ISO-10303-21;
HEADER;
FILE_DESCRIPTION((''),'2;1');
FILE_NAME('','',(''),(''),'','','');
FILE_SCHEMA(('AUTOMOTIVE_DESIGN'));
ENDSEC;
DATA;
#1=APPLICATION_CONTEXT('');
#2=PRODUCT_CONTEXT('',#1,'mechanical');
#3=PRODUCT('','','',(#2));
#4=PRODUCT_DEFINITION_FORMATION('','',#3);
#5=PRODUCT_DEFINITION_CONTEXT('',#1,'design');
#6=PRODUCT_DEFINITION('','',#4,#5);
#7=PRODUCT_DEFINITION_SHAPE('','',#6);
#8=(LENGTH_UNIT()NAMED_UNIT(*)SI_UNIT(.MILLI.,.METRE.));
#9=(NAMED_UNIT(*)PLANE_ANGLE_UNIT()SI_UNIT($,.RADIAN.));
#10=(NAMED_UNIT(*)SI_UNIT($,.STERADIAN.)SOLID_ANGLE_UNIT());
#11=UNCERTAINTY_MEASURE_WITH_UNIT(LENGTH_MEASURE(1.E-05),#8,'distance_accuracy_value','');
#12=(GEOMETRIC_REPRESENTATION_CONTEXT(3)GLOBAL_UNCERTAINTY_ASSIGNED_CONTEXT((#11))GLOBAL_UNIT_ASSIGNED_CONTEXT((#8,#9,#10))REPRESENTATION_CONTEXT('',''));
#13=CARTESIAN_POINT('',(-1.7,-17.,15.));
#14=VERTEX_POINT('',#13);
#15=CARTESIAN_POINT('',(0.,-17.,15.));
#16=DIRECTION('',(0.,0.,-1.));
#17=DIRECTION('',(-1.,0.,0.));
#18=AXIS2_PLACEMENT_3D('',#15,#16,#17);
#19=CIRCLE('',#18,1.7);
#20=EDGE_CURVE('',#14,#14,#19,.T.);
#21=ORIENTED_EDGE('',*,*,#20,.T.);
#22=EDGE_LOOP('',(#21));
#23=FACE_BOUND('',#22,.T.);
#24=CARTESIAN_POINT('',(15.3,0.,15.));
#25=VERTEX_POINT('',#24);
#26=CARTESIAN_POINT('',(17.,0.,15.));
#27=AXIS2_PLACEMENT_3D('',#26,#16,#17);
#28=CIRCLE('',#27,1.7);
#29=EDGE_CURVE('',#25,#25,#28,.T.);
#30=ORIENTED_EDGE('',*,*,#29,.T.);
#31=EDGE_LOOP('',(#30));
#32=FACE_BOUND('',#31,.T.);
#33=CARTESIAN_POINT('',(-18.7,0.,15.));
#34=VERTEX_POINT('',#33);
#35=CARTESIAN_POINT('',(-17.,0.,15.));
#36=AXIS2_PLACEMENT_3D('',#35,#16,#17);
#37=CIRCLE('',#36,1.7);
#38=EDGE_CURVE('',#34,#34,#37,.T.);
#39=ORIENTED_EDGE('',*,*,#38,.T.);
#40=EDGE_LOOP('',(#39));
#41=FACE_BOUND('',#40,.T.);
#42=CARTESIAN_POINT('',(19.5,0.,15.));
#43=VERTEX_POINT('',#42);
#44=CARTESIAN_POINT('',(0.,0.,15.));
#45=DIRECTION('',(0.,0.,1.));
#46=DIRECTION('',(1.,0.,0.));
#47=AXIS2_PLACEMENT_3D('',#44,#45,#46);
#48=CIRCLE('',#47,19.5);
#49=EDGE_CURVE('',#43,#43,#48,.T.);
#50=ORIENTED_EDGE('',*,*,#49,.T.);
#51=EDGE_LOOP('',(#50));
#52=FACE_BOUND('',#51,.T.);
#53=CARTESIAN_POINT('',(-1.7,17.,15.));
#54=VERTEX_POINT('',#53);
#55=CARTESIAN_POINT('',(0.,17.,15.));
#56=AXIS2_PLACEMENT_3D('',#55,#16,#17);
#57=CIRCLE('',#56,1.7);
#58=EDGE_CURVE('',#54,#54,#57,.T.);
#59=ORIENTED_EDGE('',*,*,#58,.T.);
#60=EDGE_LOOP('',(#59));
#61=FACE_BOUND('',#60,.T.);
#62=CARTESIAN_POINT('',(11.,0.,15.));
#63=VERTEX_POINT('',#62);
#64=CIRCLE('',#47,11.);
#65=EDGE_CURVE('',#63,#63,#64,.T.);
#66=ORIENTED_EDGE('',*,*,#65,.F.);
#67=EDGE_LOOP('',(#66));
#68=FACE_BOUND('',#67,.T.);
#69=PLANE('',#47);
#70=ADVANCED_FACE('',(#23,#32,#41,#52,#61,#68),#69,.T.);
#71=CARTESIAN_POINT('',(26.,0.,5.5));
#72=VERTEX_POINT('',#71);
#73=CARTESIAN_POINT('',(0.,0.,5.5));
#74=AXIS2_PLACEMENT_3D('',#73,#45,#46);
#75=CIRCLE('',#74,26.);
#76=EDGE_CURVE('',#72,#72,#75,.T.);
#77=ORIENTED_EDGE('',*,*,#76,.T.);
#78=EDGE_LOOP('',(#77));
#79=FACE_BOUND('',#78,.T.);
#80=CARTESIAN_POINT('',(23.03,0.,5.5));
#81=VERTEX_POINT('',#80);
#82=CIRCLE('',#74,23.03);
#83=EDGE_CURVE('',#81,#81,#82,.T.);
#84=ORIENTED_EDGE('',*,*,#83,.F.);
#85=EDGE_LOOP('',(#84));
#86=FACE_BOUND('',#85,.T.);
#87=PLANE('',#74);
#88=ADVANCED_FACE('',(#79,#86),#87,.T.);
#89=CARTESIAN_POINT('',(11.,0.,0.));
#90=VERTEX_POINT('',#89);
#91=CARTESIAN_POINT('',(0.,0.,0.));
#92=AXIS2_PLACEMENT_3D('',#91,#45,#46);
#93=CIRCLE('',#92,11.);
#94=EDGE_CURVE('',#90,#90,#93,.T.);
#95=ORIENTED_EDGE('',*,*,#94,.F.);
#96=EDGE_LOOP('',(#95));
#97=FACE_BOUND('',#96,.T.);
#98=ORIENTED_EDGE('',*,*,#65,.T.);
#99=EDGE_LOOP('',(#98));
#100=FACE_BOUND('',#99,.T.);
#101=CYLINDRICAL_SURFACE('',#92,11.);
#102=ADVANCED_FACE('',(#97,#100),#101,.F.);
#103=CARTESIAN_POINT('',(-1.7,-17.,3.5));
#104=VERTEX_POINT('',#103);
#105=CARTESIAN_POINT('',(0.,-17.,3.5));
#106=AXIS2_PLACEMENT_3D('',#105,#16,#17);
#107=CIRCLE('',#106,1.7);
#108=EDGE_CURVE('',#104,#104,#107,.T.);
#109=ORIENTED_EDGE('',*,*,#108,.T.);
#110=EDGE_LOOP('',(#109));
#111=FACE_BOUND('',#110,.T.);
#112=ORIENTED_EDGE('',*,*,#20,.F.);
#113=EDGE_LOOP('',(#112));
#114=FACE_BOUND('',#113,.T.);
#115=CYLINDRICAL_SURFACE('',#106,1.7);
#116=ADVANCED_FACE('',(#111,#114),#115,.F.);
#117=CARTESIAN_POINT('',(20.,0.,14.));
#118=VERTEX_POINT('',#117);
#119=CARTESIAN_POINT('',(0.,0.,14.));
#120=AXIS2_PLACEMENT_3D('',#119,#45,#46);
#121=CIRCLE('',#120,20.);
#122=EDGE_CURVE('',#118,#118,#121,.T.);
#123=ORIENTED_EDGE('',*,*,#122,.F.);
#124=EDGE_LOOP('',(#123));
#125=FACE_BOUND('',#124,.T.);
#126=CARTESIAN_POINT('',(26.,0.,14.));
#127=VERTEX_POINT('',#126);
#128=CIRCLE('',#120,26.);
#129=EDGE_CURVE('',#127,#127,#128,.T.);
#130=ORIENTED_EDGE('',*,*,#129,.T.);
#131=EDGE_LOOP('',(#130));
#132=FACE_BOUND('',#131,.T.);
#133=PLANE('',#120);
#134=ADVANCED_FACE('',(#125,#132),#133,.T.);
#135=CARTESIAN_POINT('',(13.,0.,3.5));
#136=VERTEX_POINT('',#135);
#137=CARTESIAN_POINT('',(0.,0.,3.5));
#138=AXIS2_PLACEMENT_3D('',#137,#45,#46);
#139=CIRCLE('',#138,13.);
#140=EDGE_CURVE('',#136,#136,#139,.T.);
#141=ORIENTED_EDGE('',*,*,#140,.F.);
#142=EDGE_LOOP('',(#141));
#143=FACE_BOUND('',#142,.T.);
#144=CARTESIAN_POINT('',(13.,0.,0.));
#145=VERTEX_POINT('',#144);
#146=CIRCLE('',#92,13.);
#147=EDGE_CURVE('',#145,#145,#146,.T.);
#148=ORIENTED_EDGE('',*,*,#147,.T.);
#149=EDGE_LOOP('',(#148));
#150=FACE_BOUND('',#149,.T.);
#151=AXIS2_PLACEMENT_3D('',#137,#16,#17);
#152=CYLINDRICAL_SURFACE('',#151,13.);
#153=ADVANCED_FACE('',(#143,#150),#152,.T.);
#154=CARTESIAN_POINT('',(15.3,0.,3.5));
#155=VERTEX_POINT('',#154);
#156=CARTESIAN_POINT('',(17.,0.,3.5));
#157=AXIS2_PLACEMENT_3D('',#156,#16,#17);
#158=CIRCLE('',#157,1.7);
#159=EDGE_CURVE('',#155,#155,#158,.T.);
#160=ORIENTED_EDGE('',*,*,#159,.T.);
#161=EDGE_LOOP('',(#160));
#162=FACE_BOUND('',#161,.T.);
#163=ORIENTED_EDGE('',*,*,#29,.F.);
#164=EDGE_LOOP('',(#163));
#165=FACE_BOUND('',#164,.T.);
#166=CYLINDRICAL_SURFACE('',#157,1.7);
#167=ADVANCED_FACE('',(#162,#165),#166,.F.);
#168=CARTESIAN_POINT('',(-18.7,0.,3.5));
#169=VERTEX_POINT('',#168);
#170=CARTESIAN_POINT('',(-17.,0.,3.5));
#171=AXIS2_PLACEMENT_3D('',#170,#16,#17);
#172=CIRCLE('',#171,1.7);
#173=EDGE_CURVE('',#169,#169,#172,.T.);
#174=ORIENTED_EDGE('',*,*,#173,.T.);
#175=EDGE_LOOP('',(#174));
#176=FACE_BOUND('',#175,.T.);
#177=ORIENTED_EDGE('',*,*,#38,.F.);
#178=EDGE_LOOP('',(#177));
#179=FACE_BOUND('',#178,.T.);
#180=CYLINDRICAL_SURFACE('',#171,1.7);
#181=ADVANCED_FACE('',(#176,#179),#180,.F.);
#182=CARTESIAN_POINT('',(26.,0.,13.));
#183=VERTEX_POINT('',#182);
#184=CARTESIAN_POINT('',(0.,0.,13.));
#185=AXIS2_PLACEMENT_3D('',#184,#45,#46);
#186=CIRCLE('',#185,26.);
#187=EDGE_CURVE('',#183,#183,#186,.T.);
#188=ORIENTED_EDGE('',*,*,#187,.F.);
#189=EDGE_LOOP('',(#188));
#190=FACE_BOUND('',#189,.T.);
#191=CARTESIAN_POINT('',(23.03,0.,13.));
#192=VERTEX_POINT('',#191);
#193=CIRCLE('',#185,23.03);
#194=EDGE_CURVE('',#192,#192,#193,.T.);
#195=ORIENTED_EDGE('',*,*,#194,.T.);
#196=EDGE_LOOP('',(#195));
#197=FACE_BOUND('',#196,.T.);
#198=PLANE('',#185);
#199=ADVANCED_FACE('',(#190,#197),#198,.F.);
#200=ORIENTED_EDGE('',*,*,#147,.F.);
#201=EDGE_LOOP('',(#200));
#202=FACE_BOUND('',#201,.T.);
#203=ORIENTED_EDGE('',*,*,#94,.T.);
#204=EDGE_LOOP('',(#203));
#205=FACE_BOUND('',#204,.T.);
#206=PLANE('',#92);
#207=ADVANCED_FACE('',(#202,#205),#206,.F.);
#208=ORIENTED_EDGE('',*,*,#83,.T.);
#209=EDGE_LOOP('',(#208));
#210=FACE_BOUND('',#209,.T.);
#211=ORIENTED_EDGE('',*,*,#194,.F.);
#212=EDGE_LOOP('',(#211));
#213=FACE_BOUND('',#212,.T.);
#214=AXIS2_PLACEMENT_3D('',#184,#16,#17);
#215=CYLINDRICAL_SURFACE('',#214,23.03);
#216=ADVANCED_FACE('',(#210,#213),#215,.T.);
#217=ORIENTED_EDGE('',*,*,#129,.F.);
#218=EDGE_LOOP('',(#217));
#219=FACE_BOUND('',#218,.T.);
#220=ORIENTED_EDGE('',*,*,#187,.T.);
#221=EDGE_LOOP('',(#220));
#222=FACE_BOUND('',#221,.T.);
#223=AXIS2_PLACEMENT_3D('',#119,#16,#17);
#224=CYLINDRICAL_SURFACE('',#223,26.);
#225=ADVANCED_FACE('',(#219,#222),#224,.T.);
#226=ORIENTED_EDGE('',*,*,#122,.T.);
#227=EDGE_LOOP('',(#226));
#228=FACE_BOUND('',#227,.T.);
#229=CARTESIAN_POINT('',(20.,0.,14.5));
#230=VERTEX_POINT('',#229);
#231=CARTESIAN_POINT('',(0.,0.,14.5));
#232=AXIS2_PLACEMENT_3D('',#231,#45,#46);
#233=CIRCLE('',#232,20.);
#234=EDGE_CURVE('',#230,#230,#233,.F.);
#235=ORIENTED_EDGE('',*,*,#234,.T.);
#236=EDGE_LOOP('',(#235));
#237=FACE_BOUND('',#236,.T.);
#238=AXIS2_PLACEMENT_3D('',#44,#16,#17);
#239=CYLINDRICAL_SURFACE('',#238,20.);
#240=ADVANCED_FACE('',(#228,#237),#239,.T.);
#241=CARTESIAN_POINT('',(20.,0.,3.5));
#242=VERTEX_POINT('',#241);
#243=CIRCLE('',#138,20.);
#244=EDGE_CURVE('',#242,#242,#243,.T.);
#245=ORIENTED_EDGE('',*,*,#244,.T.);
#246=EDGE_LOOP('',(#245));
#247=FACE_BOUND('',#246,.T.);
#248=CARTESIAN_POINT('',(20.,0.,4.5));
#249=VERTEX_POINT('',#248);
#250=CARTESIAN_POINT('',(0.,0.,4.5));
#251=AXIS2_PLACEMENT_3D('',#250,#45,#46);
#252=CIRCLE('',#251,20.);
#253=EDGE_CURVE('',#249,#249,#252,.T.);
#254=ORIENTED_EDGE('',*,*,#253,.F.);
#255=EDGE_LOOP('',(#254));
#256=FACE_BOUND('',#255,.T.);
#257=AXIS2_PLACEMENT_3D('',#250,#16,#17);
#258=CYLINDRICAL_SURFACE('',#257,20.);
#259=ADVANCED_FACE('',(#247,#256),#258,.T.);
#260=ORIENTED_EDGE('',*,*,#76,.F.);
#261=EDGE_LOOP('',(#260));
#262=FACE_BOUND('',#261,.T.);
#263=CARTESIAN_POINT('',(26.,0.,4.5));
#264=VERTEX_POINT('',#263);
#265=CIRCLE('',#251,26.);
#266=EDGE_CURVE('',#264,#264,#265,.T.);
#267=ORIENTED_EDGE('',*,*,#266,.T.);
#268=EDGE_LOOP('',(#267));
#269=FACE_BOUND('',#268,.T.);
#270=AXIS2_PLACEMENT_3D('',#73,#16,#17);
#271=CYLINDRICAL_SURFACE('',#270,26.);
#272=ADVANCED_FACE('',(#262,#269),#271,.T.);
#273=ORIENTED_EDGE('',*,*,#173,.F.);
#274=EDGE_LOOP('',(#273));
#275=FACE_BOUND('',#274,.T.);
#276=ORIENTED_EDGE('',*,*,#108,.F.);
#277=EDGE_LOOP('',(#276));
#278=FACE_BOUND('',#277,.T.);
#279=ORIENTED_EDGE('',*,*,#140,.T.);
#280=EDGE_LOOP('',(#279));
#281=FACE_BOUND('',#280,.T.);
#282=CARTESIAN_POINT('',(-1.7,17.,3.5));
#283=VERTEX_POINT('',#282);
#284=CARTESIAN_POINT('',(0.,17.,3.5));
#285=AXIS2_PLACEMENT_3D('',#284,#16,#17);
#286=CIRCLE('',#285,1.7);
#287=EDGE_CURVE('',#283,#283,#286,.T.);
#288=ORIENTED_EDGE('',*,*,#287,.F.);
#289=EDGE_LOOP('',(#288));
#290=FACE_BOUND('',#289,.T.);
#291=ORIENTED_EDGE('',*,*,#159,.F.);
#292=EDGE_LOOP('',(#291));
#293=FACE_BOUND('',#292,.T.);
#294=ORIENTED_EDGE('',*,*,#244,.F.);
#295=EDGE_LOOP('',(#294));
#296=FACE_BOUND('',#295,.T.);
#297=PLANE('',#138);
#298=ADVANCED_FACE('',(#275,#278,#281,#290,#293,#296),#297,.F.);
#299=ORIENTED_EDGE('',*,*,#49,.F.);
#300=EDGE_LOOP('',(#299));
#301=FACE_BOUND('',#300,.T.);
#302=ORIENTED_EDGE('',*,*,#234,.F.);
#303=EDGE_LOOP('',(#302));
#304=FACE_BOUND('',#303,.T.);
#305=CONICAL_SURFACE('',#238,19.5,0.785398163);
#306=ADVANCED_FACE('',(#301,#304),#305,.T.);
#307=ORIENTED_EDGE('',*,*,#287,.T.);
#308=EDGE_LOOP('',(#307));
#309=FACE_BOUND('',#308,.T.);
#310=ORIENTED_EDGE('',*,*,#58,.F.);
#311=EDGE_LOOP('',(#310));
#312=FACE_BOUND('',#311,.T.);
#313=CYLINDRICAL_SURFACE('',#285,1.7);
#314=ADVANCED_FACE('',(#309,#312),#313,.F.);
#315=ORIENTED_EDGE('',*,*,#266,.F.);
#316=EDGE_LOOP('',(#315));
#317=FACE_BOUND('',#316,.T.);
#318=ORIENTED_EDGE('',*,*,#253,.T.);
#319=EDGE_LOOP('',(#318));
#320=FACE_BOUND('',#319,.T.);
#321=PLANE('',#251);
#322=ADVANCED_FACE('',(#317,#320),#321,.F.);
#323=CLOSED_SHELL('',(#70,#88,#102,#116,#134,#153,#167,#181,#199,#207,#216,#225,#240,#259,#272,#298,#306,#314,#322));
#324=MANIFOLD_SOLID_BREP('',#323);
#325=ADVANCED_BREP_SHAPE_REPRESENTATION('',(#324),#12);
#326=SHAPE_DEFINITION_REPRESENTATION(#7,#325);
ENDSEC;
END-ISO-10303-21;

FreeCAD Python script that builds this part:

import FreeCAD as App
import Part
import Sketcher
from FreeCAD import Vector
Q = App.Units.Quantity


def edges_at(feature, points):
    """Names of the edges that pass closest to the given points."""
    edges = feature.Shape.Edges
    near = lambda p: min(range(len(edges)), key=lambda i: edges[i].distToShape(Part.Vertex(*p))[0])
    return sorted({f"Edge{near(p) + 1}" for p in points})

doc = App.newDocument("Part")
body = doc.addObject("PartDesign::Body", "Body")

# Sketch on XY plane
sketch1 = body.newObject("Sketcher::SketchObject", "Sketch")
sketch1.AttachmentSupport = (doc.getObject("XY_Plane"), [""])
sketch1.MapMode = "FlatFace"
sketch1.addGeometry(Part.Circle(Vector(0, 0, 0), Vector(0, 0, 1), 13), False)
sketch1.addConstraint(Sketcher.Constraint("Coincident", 0, 3, -1, 1))
sketch1.addConstraint(Sketcher.Constraint("Diameter", 0, Q("26 mm")))
pad1 = body.newObject("PartDesign::Pad", "Pad")
pad1.Profile = sketch1
pad1.Length = 3.5

# Sketch on XY plane
sketch2 = body.newObject("Sketcher::SketchObject", "Sketch001")
sketch2.AttachmentSupport = (doc.getObject("XY_Plane"), [""])
sketch2.MapMode = "FlatFace"
sketch2.AttachmentOffset = App.Placement(Vector(0, 0, 3.5), App.Rotation())
sketch2.addGeometry(Part.Circle(Vector(0, 0, 0), Vector(0, 0, 1), 20), False)
sketch2.addConstraint(Sketcher.Constraint("Coincident", 0, 3, -1, 1))
sketch2.addConstraint(Sketcher.Constraint("Diameter", 0, Q("40 mm")))
pad2 = body.newObject("PartDesign::Pad", "Pad001")
pad2.Profile = sketch2
pad2.Length = 1

# Sketch on XY plane
sketch3 = body.newObject("Sketcher::SketchObject", "Sketch002")
sketch3.AttachmentSupport = (doc.getObject("XY_Plane"), [""])
sketch3.MapMode = "FlatFace"
sketch3.AttachmentOffset = App.Placement(Vector(0, 0, 4.5), App.Rotation())
sketch3.addGeometry(Part.Circle(Vector(0, 0, 0), Vector(0, 0, 1), 26), False)
sketch3.addConstraint(Sketcher.Constraint("Coincident", 0, 3, -1, 1))
sketch3.addConstraint(Sketcher.Constraint("Diameter", 0, Q("52 mm")))
pad3 = body.newObject("PartDesign::Pad", "Pad002")
pad3.Profile = sketch3
pad3.Length = 1

# Sketch on XY plane
sketch4 = body.newObject("Sketcher::SketchObject", "Sketch003")
sketch4.AttachmentSupport = (doc.getObject("XY_Plane"), [""])
sketch4.MapMode = "FlatFace"
sketch4.AttachmentOffset = App.Placement(Vector(0, 0, 5.5), App.Rotation())
sketch4.addGeometry(Part.Circle(Vector(0, 0, 0), Vector(0, 0, 1), 23.03), False)
sketch4.addConstraint(Sketcher.Constraint("Coincident", 0, 3, -1, 1))
sketch4.addConstraint(Sketcher.Constraint("Diameter", 0, Q("46.06 mm")))
pad4 = body.newObject("PartDesign::Pad", "Pad003")
pad4.Profile = sketch4
pad4.Length = 7.5

# Sketch on XY plane
sketch5 = body.newObject("Sketcher::SketchObject", "Sketch004")
sketch5.AttachmentSupport = (doc.getObject("XY_Plane"), [""])
sketch5.MapMode = "FlatFace"
sketch5.AttachmentOffset = App.Placement(Vector(0, 0, 13), App.Rotation())
sketch5.addGeometry(Part.Circle(Vector(0, 0, 0), Vector(0, 0, 1), 26), False)
sketch5.addConstraint(Sketcher.Constraint("Coincident", 0, 3, -1, 1))
sketch5.addConstraint(Sketcher.Constraint("Diameter", 0, Q("52 mm")))
pad5 = body.newObject("PartDesign::Pad", "Pad004")
pad5.Profile = sketch5
pad5.Length = 1

# Sketch on XY plane
sketch6 = body.newObject("Sketcher::SketchObject", "Sketch005")
sketch6.AttachmentSupport = (doc.getObject("XY_Plane"), [""])
sketch6.MapMode = "FlatFace"
sketch6.AttachmentOffset = App.Placement(Vector(0, 0, 14), App.Rotation())
sketch6.addGeometry(Part.Circle(Vector(0, 0, 0), Vector(0, 0, 1), 20), False)
sketch6.addConstraint(Sketcher.Constraint("Coincident", 0, 3, -1, 1))
sketch6.addConstraint(Sketcher.Constraint("Diameter", 0, Q("40 mm")))
pad6 = body.newObject("PartDesign::Pad", "Pad005")
pad6.Profile = sketch6
pad6.Length = 1

# Sketch on XY plane
sketch7 = body.newObject("Sketcher::SketchObject", "Sketch006")
sketch7.AttachmentSupport = (doc.getObject("XY_Plane"), [""])
sketch7.MapMode = "FlatFace"
sketch7.AttachmentOffset = App.Placement(Vector(0, 0, 15), App.Rotation())
sketch7.addGeometry(Part.Circle(Vector(0, 0, 0), Vector(0, 0, 1), 11), False)
sketch7.addConstraint(Sketcher.Constraint("Coincident", 0, 3, -1, 1))
sketch7.addConstraint(Sketcher.Constraint("Diameter", 0, Q("22 mm")))
pocket1 = body.newObject("PartDesign::Pocket", "Pocket")
pocket1.Profile = sketch7
pocket1.Type = "ThroughAll"

# Sketch on XY plane
sketch8 = body.newObject("Sketcher::SketchObject", "Sketch007")
sketch8.AttachmentSupport = (doc.getObject("XY_Plane"), [""])
sketch8.MapMode = "FlatFace"
sketch8.AttachmentOffset = App.Placement(Vector(0, 0, 3.5), App.Rotation())
sketch8.addGeometry(Part.Circle(Vector(0, 17, 0), Vector(0, 0, 1), 1.7), False)
sketch8.addGeometry(Part.Circle(Vector(-17, 0, 0), Vector(0, 0, 1), 1.7), False)
sketch8.addGeometry(Part.Circle(Vector(0, -17, 0), Vector(0, 0, 1), 1.7), False)
sketch8.addGeometry(Part.Circle(Vector(17, 0, 0), Vector(0, 0, 1), 1.7), False)
sketch8.addConstraint(Sketcher.Constraint("Equal", 0, 1))
sketch8.addConstraint(Sketcher.Constraint("Equal", 1, 2))
sketch8.addConstraint(Sketcher.Constraint("Equal", 2, 3))
sketch8.addConstraint(Sketcher.Constraint("Symmetric", 0, 3, 2, 3, -1, 1))
sketch8.addConstraint(Sketcher.Constraint("Symmetric", 1, 3, 3, 3, -1, 1))
sketch8.addConstraint(Sketcher.Constraint("PointOnObject", 0, 3, -2))
sketch8.addConstraint(Sketcher.Constraint("PointOnObject", 1, 3, -1))
sketch8.addConstraint(Sketcher.Constraint("Diameter", 0, Q("3.4 mm")))
sketch8.addConstraint(Sketcher.Constraint("DistanceY", -1, 1, 0, 3, Q("17 mm")))
sketch8.addConstraint(Sketcher.Constraint("DistanceX", 1, 3, -1, 1, Q("17 mm")))
doc.recompute()
hole = body.newObject("PartDesign::Hole", "Hole")
hole.Profile = sketch8
hole.ThreadType = "None"
hole.Diameter = 3.4
hole.DepthType = "ThroughAll"
hole.Reversed = True
doc.recompute()

chamfer = body.newObject("PartDesign::Chamfer", "Chamfer")
chamfer.Base = (hole, edges_at(hole, [(-20, 0, 15)]))
chamfer.Size = 0.5

doc.recompute()
